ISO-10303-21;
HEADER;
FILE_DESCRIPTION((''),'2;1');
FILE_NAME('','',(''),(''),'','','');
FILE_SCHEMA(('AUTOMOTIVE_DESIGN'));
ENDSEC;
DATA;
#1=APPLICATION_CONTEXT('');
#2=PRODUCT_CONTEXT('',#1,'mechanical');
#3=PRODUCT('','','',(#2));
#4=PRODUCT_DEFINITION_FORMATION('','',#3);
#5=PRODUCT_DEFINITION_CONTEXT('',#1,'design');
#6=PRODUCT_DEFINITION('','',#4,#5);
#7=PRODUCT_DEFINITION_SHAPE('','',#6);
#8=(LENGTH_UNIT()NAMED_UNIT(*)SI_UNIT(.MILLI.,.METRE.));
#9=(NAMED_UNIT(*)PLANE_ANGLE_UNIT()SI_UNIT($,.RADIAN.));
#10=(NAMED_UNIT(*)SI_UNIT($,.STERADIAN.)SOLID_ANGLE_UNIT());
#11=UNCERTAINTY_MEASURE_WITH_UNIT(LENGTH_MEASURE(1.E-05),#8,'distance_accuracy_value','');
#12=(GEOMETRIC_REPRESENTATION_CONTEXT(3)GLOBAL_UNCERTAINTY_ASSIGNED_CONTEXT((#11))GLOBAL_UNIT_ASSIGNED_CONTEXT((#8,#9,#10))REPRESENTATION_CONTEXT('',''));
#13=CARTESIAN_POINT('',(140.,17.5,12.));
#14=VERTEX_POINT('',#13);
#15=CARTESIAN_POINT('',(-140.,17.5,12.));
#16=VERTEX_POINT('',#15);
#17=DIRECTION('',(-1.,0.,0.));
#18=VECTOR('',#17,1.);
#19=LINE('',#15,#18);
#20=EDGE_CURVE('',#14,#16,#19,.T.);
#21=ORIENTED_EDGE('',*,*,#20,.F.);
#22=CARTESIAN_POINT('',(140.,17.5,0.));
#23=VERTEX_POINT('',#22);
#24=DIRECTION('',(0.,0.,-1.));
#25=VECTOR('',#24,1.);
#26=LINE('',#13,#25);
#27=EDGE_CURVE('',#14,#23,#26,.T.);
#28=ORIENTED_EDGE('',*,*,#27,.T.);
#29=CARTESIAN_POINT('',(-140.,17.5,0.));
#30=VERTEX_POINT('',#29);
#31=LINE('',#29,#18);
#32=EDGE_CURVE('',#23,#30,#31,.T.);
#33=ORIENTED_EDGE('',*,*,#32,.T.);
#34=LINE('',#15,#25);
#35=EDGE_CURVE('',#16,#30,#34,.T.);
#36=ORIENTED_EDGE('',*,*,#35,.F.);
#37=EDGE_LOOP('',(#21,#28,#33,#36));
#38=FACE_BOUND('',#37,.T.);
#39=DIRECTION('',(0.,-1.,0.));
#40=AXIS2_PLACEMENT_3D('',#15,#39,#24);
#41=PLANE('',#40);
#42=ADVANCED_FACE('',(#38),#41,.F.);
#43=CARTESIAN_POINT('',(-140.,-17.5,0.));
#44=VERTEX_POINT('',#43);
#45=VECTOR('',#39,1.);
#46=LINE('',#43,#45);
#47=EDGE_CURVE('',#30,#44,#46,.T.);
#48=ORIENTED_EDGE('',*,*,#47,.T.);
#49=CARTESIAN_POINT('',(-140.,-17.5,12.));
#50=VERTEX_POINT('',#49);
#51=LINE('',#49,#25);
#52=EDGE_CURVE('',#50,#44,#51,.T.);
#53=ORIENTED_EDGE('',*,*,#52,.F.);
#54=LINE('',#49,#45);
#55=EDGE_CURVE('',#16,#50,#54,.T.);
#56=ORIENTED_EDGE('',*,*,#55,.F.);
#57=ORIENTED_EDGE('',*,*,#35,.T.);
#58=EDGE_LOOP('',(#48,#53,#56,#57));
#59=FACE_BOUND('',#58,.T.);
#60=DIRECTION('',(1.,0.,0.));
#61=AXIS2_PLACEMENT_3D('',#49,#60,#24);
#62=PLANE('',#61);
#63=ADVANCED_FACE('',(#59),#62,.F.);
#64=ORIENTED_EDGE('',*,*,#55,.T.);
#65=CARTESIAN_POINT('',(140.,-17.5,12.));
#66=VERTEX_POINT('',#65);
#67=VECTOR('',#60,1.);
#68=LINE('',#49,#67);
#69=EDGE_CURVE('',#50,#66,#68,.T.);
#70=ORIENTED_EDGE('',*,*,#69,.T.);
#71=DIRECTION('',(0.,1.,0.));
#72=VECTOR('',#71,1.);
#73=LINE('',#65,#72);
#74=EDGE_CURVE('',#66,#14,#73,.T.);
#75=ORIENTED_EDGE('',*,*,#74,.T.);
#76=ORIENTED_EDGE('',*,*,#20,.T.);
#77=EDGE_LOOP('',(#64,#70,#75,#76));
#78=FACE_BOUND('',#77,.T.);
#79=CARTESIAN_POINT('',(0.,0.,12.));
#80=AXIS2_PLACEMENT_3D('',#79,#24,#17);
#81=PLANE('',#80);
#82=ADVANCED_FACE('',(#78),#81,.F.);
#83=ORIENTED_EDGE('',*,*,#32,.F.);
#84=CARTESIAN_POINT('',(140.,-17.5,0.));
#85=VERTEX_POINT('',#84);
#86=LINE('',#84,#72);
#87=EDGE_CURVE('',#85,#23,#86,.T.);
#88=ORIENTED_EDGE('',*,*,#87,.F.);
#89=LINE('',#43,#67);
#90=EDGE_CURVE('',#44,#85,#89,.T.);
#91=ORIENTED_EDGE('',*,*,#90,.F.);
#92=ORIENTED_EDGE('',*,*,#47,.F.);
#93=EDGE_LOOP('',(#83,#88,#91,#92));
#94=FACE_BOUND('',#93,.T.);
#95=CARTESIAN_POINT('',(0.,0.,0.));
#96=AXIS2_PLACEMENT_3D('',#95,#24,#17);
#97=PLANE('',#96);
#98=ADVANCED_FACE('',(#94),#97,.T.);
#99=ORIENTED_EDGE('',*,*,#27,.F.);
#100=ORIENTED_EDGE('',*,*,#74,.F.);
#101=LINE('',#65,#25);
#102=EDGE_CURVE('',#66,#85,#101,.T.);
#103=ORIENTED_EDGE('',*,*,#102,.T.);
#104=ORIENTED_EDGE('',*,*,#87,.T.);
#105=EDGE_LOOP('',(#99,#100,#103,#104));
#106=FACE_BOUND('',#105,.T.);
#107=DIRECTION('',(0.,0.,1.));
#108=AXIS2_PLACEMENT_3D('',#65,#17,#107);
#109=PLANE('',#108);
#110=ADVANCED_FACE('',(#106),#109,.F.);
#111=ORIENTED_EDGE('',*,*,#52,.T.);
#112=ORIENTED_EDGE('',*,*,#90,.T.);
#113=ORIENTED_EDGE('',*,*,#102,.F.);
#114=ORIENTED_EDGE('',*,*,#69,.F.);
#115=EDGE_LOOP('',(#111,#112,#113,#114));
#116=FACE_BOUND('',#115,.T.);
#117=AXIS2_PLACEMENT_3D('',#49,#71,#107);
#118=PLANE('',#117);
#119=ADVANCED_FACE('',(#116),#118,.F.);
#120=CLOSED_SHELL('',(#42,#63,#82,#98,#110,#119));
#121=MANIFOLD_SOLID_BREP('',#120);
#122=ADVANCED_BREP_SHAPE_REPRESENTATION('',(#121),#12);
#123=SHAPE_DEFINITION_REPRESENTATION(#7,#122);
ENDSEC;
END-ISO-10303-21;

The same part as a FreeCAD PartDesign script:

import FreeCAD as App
import Part
import Sketcher
from FreeCAD import Vector
Q = App.Units.Quantity

doc = App.newDocument("Part")
body = doc.addObject("PartDesign::Body", "Body")

sketch1 = body.newObject("Sketcher::SketchObject", "Sketch")
sketch1.AttachmentSupport = (doc.getObject("XY_Plane"), [""])
sketch1.MapMode = "FlatFace"
sketch1.addGeometry([
    Part.LineSegment(Vector(-140, 18, 0), Vector(-140, -18, 0)),
    Part.LineSegment(Vector(-140, -18, 0), Vector(140, -18, 0)),
    Part.LineSegment(Vector(140, -18, 0), Vector(140, 18, 0)),
    Part.LineSegment(Vector(140, 18, 0), Vector(-140, 18, 0)),
], False)
sketch1.addConstraint([
    Sketcher.Constraint("Coincident", 0, 2, 1, 1),
    Sketcher.Constraint("Coincident", 1, 2, 2, 1),
    Sketcher.Constraint("Coincident", 2, 2, 3, 1),
    Sketcher.Constraint("Coincident", 3, 2, 0, 1),
    Sketcher.Constraint("Vertical", 0),
    Sketcher.Constraint("Horizontal", 1),
    Sketcher.Constraint("Vertical", 2),
    Sketcher.Constraint("Horizontal", 3),
    Sketcher.Constraint("Symmetric", 0, 2, 2, 2, -1, 1),
    Sketcher.Constraint("DistanceX", 1, 1, 1, 2, Q("280 mm")),
    Sketcher.Constraint("DistanceY", 0, 2, 0, 1, Q("35 mm")),
])
pad1 = body.newObject("PartDesign::Pad", "Pad")
pad1.Profile = sketch1
pad1.Length = 12

doc.recompute()
